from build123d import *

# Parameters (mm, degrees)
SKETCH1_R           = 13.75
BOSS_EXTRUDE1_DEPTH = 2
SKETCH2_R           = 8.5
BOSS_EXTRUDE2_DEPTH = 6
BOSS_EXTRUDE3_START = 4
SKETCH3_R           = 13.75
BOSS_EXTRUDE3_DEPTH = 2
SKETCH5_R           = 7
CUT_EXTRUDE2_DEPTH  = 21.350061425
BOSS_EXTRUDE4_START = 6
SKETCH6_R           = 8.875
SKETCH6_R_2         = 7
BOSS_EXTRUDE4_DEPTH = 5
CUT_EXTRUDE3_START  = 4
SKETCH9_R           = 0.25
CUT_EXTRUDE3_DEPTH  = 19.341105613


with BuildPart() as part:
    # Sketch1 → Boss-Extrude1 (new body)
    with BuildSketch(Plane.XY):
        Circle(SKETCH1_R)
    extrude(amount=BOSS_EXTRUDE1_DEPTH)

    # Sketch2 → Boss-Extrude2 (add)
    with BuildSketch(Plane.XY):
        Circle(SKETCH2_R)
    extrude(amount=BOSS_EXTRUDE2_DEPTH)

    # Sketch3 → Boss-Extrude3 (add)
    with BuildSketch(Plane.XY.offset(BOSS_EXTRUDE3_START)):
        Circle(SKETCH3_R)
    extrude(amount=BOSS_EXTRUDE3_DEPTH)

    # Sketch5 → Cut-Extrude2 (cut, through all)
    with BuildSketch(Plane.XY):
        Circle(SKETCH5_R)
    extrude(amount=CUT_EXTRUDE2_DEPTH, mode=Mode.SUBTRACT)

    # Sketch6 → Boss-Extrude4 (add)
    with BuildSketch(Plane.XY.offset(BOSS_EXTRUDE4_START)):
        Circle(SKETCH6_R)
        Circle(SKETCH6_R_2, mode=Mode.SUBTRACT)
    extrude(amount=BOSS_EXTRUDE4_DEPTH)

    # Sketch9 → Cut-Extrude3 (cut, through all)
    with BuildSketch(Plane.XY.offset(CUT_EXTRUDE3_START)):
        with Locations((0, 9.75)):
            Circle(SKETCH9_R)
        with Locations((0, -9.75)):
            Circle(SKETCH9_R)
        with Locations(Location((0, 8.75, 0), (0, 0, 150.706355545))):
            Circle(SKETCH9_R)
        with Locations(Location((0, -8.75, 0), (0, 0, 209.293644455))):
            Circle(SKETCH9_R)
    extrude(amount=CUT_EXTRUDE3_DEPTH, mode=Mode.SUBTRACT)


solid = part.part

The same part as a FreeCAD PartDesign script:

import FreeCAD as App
import Part
import Sketcher

V = App.Vector

doc = App.newDocument("Part")
body = doc.addObject("PartDesign::Body", "Body")

sketch1 = doc.addObject("Sketcher::SketchObject", "Sketch")
body.addObject(sketch1)
sketch1.AttachmentSupport = (doc.XY_Plane, [""])
sketch1.MapMode = "FlatFace"
sketch1.addGeometry(Part.Circle(V(0, 0, 0), V(0, 0, 1), 14), False)
sketch1.addConstraint([
    Sketcher.Constraint("Coincident", 0, 3, -1, 1),
    Sketcher.Constraint("Diameter", 0, 27.5),
])
pad1 = doc.addObject("PartDesign::Pad", "Pad")
body.addObject(pad1)
pad1.Profile = sketch1
pad1.Length = 2

sketch2 = doc.addObject("Sketcher::SketchObject", "Sketch001")
body.addObject(sketch2)
sketch2.AttachmentSupport = (doc.XY_Plane, [""])
sketch2.MapMode = "FlatFace"
sketch2.addGeometry(Part.Circle(V(0, 0, 0), V(0, 0, 1), 8), False)
sketch2.addConstraint([
    Sketcher.Constraint("Coincident", 0, 3, -1, 1),
    Sketcher.Constraint("Diameter", 0, 17.0),
])
pad2 = doc.addObject("PartDesign::Pad", "Pad001")
body.addObject(pad2)
pad2.Profile = sketch2
pad2.Length = 6

sketch3 = doc.addObject("Sketcher::SketchObject", "Sketch002")
body.addObject(sketch3)
sketch3.AttachmentSupport = (doc.XY_Plane, [""])
sketch3.MapMode = "FlatFace"
sketch3.AttachmentOffset = App.Placement(V(0, 0, 4), App.Rotation())
sketch3.addGeometry(Part.Circle(V(0, 0, 0), V(0, 0, 1), 14), False)
sketch3.addConstraint([
    Sketcher.Constraint("Coincident", 0, 3, -1, 1),
    Sketcher.Constraint("Diameter", 0, 27.5),
])
pad3 = doc.addObject("PartDesign::Pad", "Pad002")
body.addObject(pad3)
pad3.Profile = sketch3
pad3.Length = 2

sketch4 = doc.addObject("Sketcher::SketchObject", "Sketch003")
body.addObject(sketch4)
sketch4.AttachmentSupport = (doc.XY_Plane, [""])
sketch4.MapMode = "FlatFace"
sketch4.addGeometry(Part.Circle(V(0, 0, 0), V(0, 0, 1), 7), False)
sketch4.addConstraint([
    Sketcher.Constraint("Coincident", 0, 3, -1, 1),
    Sketcher.Constraint("Diameter", 0, 14.0),
])
pocket1 = doc.addObject("PartDesign::Pocket", "Pocket")
body.addObject(pocket1)
pocket1.Profile = sketch4
pocket1.Type = "ThroughAll"
pocket1.Reversed = True

sketch5 = doc.addObject("Sketcher::SketchObject", "Sketch004")
body.addObject(sketch5)
sketch5.AttachmentSupport = (doc.XY_Plane, [""])
sketch5.MapMode = "FlatFace"
sketch5.AttachmentOffset = App.Placement(V(0, 0, 6), App.Rotation())
sketch5.addGeometry([
    Part.Circle(V(0, 0, 0), V(0, 0, 1), 9),
    Part.Circle(V(0, 0, 0), V(0, 0, 1), 7),
], False)
sketch5.addConstraint([
    Sketcher.Constraint("Coincident", 0, 3, -1, 1),
    Sketcher.Constraint("Coincident", 1, 3, -1, 1),
    Sketcher.Constraint("Diameter", 1, 14.0),
    Sketcher.Constraint("Diameter", 0, 17.75),
])
pad4 = doc.addObject("PartDesign::Pad", "Pad003")
body.addObject(pad4)
pad4.Profile = sketch5
pad4.Length = 5

sketch6 = doc.addObject("Sketcher::SketchObject", "Sketch005")
body.addObject(sketch6)
sketch6.AttachmentSupport = (doc.XY_Plane, [""])
sketch6.MapMode = "FlatFace"
sketch6.AttachmentOffset = App.Placement(V(0, 0, 4), App.Rotation())
sketch6.addGeometry([
    Part.Circle(V(0, 9.75, 0), V(0, 0, 1), 0.25),
    Part.Circle(V(0, -9.75, 0), V(0, 0, 1), 0.25),
    Part.Circle(V(0, 8.75, 0), V(0, 0, 1), 0.25),
    Part.Circle(V(0, -8.75, 0), V(0, 0, 1), 0.25),
], False)
sketch6.addConstraint([
    Sketcher.Constraint("Equal", 0, 1),
    Sketcher.Constraint("Equal", 1, 2),
    Sketcher.Constraint("Equal", 2, 3),
    Sketcher.Constraint("Symmetric", 0, 3, 1, 3, -1, 1),
    Sketcher.Constraint("Symmetric", 2, 3, 3, 3, -1, 1),
    Sketcher.Constraint("PointOnObject", 0, 3, -2),
    Sketcher.Constraint("PointOnObject", 2, 3, -2),
    Sketcher.Constraint("Diameter", 0, 0.5),
    Sketcher.Constraint("DistanceY", 2, 3, 0, 3, 1.0),
    Sketcher.Constraint("DistanceY", 1, 3, 0, 3, 19.5),
])
pocket2 = doc.addObject("PartDesign::Pocket", "Pocket001")
body.addObject(pocket2)
pocket2.Profile = sketch6
pocket2.Type = "ThroughAll"
pocket2.Reversed = True

doc.recompute()
